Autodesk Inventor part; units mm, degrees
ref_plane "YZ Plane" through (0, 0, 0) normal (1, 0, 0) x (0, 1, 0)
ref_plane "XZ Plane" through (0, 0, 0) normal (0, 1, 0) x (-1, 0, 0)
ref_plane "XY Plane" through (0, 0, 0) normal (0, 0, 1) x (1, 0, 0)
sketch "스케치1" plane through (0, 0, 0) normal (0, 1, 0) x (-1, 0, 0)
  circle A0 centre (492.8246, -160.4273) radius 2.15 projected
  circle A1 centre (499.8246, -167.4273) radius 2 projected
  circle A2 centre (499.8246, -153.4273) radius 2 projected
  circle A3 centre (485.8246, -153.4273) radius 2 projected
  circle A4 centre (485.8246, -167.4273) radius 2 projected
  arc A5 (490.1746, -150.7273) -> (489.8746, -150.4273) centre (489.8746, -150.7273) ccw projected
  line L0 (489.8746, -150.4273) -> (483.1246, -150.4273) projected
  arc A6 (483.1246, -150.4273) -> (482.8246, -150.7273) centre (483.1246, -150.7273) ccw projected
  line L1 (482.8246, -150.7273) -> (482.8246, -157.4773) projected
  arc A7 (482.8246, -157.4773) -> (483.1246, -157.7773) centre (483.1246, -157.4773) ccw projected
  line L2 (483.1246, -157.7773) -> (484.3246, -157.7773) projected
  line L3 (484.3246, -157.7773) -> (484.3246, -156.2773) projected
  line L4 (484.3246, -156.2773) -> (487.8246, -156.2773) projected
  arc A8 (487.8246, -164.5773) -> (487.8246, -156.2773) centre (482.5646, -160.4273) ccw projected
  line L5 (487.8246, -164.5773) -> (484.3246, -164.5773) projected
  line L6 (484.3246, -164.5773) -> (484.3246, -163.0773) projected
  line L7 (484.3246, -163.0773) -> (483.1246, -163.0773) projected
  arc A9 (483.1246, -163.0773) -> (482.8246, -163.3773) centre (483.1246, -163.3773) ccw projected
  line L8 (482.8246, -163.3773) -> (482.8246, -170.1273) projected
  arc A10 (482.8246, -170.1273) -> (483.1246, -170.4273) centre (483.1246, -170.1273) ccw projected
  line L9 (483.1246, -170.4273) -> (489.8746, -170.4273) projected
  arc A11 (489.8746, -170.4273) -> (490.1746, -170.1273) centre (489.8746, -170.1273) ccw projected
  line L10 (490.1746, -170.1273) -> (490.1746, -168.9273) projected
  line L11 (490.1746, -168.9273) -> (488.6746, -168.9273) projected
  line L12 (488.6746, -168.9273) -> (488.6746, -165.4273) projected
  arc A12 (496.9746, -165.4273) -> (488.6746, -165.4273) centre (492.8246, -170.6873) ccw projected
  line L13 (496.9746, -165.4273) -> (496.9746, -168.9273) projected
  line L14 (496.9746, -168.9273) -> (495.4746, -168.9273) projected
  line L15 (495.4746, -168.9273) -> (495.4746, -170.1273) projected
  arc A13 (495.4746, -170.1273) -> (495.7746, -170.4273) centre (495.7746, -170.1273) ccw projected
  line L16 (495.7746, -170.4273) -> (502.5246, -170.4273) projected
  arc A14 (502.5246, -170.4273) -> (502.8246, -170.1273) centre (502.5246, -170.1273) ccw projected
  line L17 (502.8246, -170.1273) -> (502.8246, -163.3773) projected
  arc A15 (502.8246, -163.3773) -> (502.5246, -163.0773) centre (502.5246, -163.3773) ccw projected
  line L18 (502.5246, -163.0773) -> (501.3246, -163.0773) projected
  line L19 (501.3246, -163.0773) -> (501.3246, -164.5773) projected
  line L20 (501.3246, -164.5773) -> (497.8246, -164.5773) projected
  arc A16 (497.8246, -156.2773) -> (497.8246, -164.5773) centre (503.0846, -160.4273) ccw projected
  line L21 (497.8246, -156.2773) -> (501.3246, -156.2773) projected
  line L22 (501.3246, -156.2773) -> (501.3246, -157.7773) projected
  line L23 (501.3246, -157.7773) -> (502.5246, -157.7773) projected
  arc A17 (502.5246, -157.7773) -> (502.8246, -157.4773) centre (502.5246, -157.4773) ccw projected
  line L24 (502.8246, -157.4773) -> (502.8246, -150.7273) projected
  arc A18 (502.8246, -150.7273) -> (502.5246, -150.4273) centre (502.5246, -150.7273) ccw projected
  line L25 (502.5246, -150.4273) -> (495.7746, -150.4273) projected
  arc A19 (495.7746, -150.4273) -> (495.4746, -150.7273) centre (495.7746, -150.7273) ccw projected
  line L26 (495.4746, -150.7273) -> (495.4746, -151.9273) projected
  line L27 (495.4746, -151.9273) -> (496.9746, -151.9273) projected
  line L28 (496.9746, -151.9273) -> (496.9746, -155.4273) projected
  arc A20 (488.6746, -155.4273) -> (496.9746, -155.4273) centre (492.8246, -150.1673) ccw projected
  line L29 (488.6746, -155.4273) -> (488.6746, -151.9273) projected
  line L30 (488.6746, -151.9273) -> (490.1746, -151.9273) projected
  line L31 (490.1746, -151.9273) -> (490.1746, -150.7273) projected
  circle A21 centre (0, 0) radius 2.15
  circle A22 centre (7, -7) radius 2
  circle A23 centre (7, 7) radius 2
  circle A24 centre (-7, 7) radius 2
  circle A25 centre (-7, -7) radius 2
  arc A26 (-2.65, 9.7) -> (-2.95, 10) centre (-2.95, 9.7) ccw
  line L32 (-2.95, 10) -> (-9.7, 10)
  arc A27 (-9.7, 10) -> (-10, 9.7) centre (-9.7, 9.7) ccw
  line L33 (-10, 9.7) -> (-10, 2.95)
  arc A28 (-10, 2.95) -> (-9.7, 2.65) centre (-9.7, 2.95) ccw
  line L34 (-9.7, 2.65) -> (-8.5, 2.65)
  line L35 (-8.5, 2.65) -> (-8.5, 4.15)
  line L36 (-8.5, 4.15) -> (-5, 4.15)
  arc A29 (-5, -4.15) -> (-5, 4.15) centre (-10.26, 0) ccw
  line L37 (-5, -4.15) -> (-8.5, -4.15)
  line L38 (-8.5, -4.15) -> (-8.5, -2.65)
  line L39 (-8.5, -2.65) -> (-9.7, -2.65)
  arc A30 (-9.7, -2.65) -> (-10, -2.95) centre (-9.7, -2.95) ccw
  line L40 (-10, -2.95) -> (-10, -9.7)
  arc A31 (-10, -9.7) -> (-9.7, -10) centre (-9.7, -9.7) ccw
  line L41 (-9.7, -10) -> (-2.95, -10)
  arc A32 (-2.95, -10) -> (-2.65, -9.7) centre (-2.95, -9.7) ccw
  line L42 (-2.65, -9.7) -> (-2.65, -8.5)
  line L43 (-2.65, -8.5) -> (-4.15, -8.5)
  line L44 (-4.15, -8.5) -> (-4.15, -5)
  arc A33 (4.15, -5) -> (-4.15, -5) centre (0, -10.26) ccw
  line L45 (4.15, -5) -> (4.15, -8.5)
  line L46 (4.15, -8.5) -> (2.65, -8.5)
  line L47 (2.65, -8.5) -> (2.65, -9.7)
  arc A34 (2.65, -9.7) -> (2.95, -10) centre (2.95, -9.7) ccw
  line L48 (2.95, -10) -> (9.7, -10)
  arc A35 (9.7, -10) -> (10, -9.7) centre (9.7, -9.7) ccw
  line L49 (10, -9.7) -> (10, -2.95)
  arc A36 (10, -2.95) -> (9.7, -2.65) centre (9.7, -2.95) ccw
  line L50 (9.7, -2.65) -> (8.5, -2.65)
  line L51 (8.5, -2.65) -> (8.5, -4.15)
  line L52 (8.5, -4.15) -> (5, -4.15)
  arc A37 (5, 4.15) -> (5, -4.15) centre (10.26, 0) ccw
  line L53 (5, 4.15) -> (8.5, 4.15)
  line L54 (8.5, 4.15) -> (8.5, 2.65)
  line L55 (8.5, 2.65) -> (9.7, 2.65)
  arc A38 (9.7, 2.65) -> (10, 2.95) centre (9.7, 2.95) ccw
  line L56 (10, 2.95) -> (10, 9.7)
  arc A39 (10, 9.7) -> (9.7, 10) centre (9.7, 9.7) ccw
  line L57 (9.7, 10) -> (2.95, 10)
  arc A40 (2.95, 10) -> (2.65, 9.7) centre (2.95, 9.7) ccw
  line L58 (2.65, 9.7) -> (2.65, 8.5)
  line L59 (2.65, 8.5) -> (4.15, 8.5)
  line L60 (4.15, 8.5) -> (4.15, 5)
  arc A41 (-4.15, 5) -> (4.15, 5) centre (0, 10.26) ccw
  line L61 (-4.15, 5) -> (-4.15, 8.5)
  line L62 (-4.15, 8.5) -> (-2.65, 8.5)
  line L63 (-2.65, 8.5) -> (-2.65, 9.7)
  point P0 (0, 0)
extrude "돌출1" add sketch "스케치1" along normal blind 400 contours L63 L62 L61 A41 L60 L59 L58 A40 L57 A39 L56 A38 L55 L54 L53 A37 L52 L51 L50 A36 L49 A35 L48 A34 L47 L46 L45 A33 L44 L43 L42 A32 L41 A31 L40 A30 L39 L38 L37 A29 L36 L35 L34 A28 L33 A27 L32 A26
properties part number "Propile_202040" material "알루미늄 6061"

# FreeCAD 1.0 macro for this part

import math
import FreeCAD as App
import Part
import Sketcher
from FreeCAD import Vector
Q = App.Units.Quantity

doc = App.newDocument("Part")
body = doc.addObject("PartDesign::Body", "Body")

# Sketch on XZ plane
sketch1 = body.newObject("Sketcher::SketchObject", "Sketch")
sketch1.AttachmentSupport = (doc.getObject("XZ_Plane"), [""])
sketch1.MapMode = "FlatFace"
sketch1.addGeometry(Part.LineSegment(Vector(2.65, 8.5, 0), Vector(2.65, 9.7, 0)), False)
sketch1.addGeometry(Part.ArcOfCircle(Part.Circle(Vector(2.95, 9.7, 0), Vector(0, 0, 1), 0.3), math.radians(90), math.radians(180)), False)
sketch1.addGeometry(Part.LineSegment(Vector(2.95, 10, 0), Vector(9.7, 10, 0)), False)
sketch1.addGeometry(Part.ArcOfCircle(Part.Circle(Vector(9.7, 9.7, 0), Vector(0, 0, 1), 0.3), math.radians(0), math.radians(90)), False)
sketch1.addGeometry(Part.LineSegment(Vector(10, 9.7, 0), Vector(10, 2.95, 0)), False)
sketch1.addGeometry(Part.ArcOfCircle(Part.Circle(Vector(9.7, 2.95, 0), Vector(0, 0, 1), 0.3), math.radians(-90), math.radians(0)), False)
sketch1.addGeometry(Part.LineSegment(Vector(9.7, 2.65, 0), Vector(8.5, 2.65, 0)), False)
sketch1.addGeometry(Part.LineSegment(Vector(8.5, 2.65, 0), Vector(8.5, 4.15, 0)), False)
sketch1.addGeometry(Part.LineSegment(Vector(8.5, 4.15, 0), Vector(5, 4.15, 0)), False)
sketch1.addGeometry(Part.ArcOfCircle(Part.Circle(Vector(10.26, 0, 0), Vector(0, 0, 1), 6.700007), math.radians(141.7275), math.radians(218.2725)), False)
sketch1.addGeometry(Part.LineSegment(Vector(5, -4.15, 0), Vector(8.5, -4.15, 0)), False)
sketch1.addGeometry(Part.LineSegment(Vector(8.5, -4.15, 0), Vector(8.5, -2.65, 0)), False)
sketch1.addGeometry(Part.LineSegment(Vector(8.5, -2.65, 0), Vector(9.7, -2.65, 0)), False)
sketch1.addGeometry(Part.ArcOfCircle(Part.Circle(Vector(9.7, -2.95, 0), Vector(0, 0, 1), 0.3), math.radians(0), math.radians(90)), False)
sketch1.addGeometry(Part.LineSegment(Vector(10, -2.95, 0), Vector(10, -9.7, 0)), False)
sketch1.addGeometry(Part.ArcOfCircle(Part.Circle(Vector(9.7, -9.7, 0), Vector(0, 0, 1), 0.3), math.radians(-90), math.radians(0)), False)
sketch1.addGeometry(Part.LineSegment(Vector(9.7, -10, 0), Vector(2.95, -10, 0)), False)
sketch1.addGeometry(Part.ArcOfCircle(Part.Circle(Vector(2.95, -9.7, 0), Vector(0, 0, 1), 0.3), math.radians(180), math.radians(270)), False)
sketch1.addGeometry(Part.LineSegment(Vector(2.65, -9.7, 0), Vector(2.65, -8.5, 0)), False)
sketch1.addGeometry(Part.LineSegment(Vector(2.65, -8.5, 0), Vector(4.15, -8.5, 0)), False)
sketch1.addGeometry(Part.LineSegment(Vector(4.15, -8.5, 0), Vector(4.15, -5, 0)), False)
sketch1.addGeometry(Part.ArcOfCircle(Part.Circle(Vector(0, -10.26, 0), Vector(0, 0, 1), 6.700007), math.radians(51.7275), math.radians(128.2725)), False)
sketch1.addGeometry(Part.LineSegment(Vector(-4.15, -5, 0), Vector(-4.15, -8.5, 0)), False)
sketch1.addGeometry(Part.LineSegment(Vector(-4.15, -8.5, 0), Vector(-2.65, -8.5, 0)), False)
sketch1.addGeometry(Part.LineSegment(Vector(-2.65, -8.5, 0), Vector(-2.65, -9.7, 0)), False)
sketch1.addGeometry(Part.ArcOfCircle(Part.Circle(Vector(-2.95, -9.7, 0), Vector(0, 0, 1), 0.3), math.radians(-90), math.radians(0)), False)
sketch1.addGeometry(Part.LineSegment(Vector(-2.95, -10, 0), Vector(-9.7, -10, 0)), False)
sketch1.addGeometry(Part.ArcOfCircle(Part.Circle(Vector(-9.7, -9.7, 0), Vector(0, 0, 1), 0.3), math.radians(180), math.radians(270)), False)
sketch1.addGeometry(Part.LineSegment(Vector(-10, -9.7, 0), Vector(-10, -2.95, 0)), False)
sketch1.addGeometry(Part.ArcOfCircle(Part.Circle(Vector(-9.7, -2.95, 0), Vector(0, 0, 1), 0.3), math.radians(90), math.radians(180)), False)
sketch1.addGeometry(Part.LineSegment(Vector(-9.7, -2.65, 0), Vector(-8.5, -2.65, 0)), False)
sketch1.addGeometry(Part.LineSegment(Vector(-8.5, -2.65, 0), Vector(-8.5, -4.15, 0)), False)
sketch1.addGeometry(Part.LineSegment(Vector(-8.5, -4.15, 0), Vector(-5, -4.15, 0)), False)
sketch1.addGeometry(Part.ArcOfCircle(Part.Circle(Vector(-10.26, 0, 0), Vector(0, 0, 1), 6.700007), math.radians(-38.2725), math.radians(38.2725)), False)
sketch1.addGeometry(Part.LineSegment(Vector(-5, 4.15, 0), Vector(-8.5, 4.15, 0)), False)
sketch1.addGeometry(Part.LineSegment(Vector(-8.5, 4.15, 0), Vector(-8.5, 2.65, 0)), False)
sketch1.addGeometry(Part.LineSegment(Vector(-8.5, 2.65, 0), Vector(-9.7, 2.65, 0)), False)
sketch1.addGeometry(Part.ArcOfCircle(Part.Circle(Vector(-9.7, 2.95, 0), Vector(0, 0, 1), 0.3), math.radians(180), math.radians(270)), False)
sketch1.addGeometry(Part.LineSegment(Vector(-10, 2.95, 0), Vector(-10, 9.7, 0)), False)
sketch1.addGeometry(Part.ArcOfCircle(Part.Circle(Vector(-9.7, 9.7, 0), Vector(0, 0, 1), 0.3), math.radians(90), math.radians(180)), False)
sketch1.addGeometry(Part.LineSegment(Vector(-9.7, 10, 0), Vector(-2.95, 10, 0)), False)
sketch1.addGeometry(Part.ArcOfCircle(Part.Circle(Vector(-2.95, 9.7, 0), Vector(0, 0, 1), 0.3), math.radians(0), math.radians(90)), False)
sketch1.addGeometry(Part.LineSegment(Vector(-2.65, 9.7, 0), Vector(-2.65, 8.5, 0)), False)
sketch1.addGeometry(Part.LineSegment(Vector(-2.65, 8.5, 0), Vector(-4.15, 8.5, 0)), False)
sketch1.addGeometry(Part.LineSegment(Vector(-4.15, 8.5, 0), Vector(-4.15, 5, 0)), False)
sketch1.addGeometry(Part.ArcOfCircle(Part.Circle(Vector(0, 10.26, 0), Vector(0, 0, 1), 6.700007), math.radians(-128.2725), math.radians(-51.7275)), False)
sketch1.addGeometry(Part.LineSegment(Vector(4.15, 5, 0), Vector(4.15, 8.5, 0)), False)
sketch1.addGeometry(Part.LineSegment(Vector(4.15, 8.5, 0), Vector(2.65, 8.5, 0)), False)
sketch1.addGeometry(Part.Circle(Vector(7, -7, 0), Vector(0, 0, 1), 2), False)
sketch1.addGeometry(Part.Circle(Vector(-7, -7, 0), Vector(0, 0, 1), 2), False)
sketch1.addGeometry(Part.Circle(Vector(0, 0, 0), Vector(0, 0, 1), 2.15), False)
sketch1.addGeometry(Part.Circle(Vector(7, 7, 0), Vector(0, 0, 1), 2), False)
sketch1.addGeometry(Part.Circle(Vector(-7, 7, 0), Vector(0, 0, 1), 2), False)
sketch1.addConstraint(Sketcher.Constraint("Tangent", 0, 2, 1, 2))
sketch1.addConstraint(Sketcher.Constraint("Tangent", 1, 1, 2, 1))
sketch1.addConstraint(Sketcher.Constraint("Tangent", 2, 2, 3, 2))
sketch1.addConstraint(Sketcher.Constraint("Tangent", 3, 1, 4, 1))
sketch1.addConstraint(Sketcher.Constraint("Tangent", 4, 2, 5, 2))
sketch1.addConstraint(Sketcher.Constraint("Tangent", 5, 1, 6, 1))
sketch1.addConstraint(Sketcher.Constraint("Coincident", 6, 2, 7, 1))
sketch1.addConstraint(Sketcher.Constraint("Coincident", 7, 2, 8, 1))
sketch1.addConstraint(Sketcher.Constraint("Coincident", 8, 2, 9, 1))
sketch1.addConstraint(Sketcher.Constraint("Coincident", 9, 2, 10, 1))
sketch1.addConstraint(Sketcher.Constraint("Coincident", 10, 2, 11, 1))
sketch1.addConstraint(Sketcher.Constraint("Coincident", 11, 2, 12, 1))
sketch1.addConstraint(Sketcher.Constraint("Tangent", 12, 2, 13, 2))
sketch1.addConstraint(Sketcher.Constraint("Tangent", 13, 1, 14, 1))
sketch1.addConstraint(Sketcher.Constraint("Tangent", 14, 2, 15, 2))
sketch1.addConstraint(Sketcher.Constraint("Tangent", 15, 1, 16, 1))
sketch1.addConstraint(Sketcher.Constraint("Tangent", 16, 2, 17, 2))
sketch1.addConstraint(Sketcher.Constraint("Tangent", 17, 1, 18, 1))
sketch1.addConstraint(Sketcher.Constraint("Coincident", 18, 2, 19, 1))
sketch1.addConstraint(Sketcher.Constraint("Coincident", 19, 2, 20, 1))
sketch1.addConstraint(Sketcher.Constraint("Coincident", 20, 2, 21, 1))
sketch1.addConstraint(Sketcher.Constraint("Coincident", 21, 2, 22, 1))
sketch1.addConstraint(Sketcher.Constraint("Coincident", 22, 2, 23, 1))
sketch1.addConstraint(Sketcher.Constraint("Coincident", 23, 2, 24, 1))
sketch1.addConstraint(Sketcher.Constraint("Tangent", 24, 2, 25, 2))
sketch1.addConstraint(Sketcher.Constraint("Tangent", 25, 1, 26, 1))
sketch1.addConstraint(Sketcher.Constraint("Tangent", 26, 2, 27, 2))
sketch1.addConstraint(Sketcher.Constraint("Tangent", 27, 1, 28, 1))
sketch1.addConstraint(Sketcher.Constraint("Tangent", 28, 2, 29, 2))
sketch1.addConstraint(Sketcher.Constraint("Tangent", 29, 1, 30, 1))
sketch1.addConstraint(Sketcher.Constraint("Coincident", 30, 2, 31, 1))
sketch1.addConstraint(Sketcher.Constraint("Coincident", 31, 2, 32, 1))
sketch1.addConstraint(Sketcher.Constraint("Coincident", 32, 2, 33, 1))
sketch1.addConstraint(Sketcher.Constraint("Coincident", 33, 2, 34, 1))
sketch1.addConstraint(Sketcher.Constraint("Coincident", 34, 2, 35, 1))
sketch1.addConstraint(Sketcher.Constraint("Coincident", 35, 2, 36, 1))
sketch1.addConstraint(Sketcher.Constraint("Tangent", 36, 2, 37, 2))
sketch1.addConstraint(Sketcher.Constraint("Tangent", 37, 1, 38, 1))
sketch1.addConstraint(Sketcher.Constraint("Tangent", 38, 2, 39, 2))
sketch1.addConstraint(Sketcher.Constraint("Tangent", 39, 1, 40, 1))
sketch1.addConstraint(Sketcher.Constraint("Tangent", 40, 2, 41, 2))
sketch1.addConstraint(Sketcher.Constraint("Tangent", 41, 1, 42, 1))
sketch1.addConstraint(Sketcher.Constraint("Coincident", 42, 2, 43, 1))
sketch1.addConstraint(Sketcher.Constraint("Coincident", 43, 2, 44, 1))
sketch1.addConstraint(Sketcher.Constraint("Coincident", 44, 2, 45, 1))
sketch1.addConstraint(Sketcher.Constraint("Coincident", 45, 2, 46, 1))
sketch1.addConstraint(Sketcher.Constraint("Coincident", 46, 2, 47, 1))
sketch1.addConstraint(Sketcher.Constraint("Coincident", 47, 2, 0, 1))
sketch1.addConstraint(Sketcher.Constraint("Vertical", 0))
sketch1.addConstraint(Sketcher.Constraint("Horizontal", 2))
sketch1.addConstraint(Sketcher.Constraint("Vertical", 4))
sketch1.addConstraint(Sketcher.Constraint("Horizontal", 6))
sketch1.addConstraint(Sketcher.Constraint("Vertical", 7))
sketch1.addConstraint(Sketcher.Constraint("Horizontal", 8))
sketch1.addConstraint(Sketcher.Constraint("Horizontal", 10))
sketch1.addConstraint(Sketcher.Constraint("Vertical", 11))
sketch1.addConstraint(Sketcher.Constraint("Horizontal", 12))
sketch1.addConstraint(Sketcher.Constraint("Vertical", 14))
sketch1.addConstraint(Sketcher.Constraint("Horizontal", 16))
sketch1.addConstraint(Sketcher.Constraint("Vertical", 18))
sketch1.addConstraint(Sketcher.Constraint("Horizontal", 19))
sketch1.addConstraint(Sketcher.Constraint("Vertical", 20))
sketch1.addConstraint(Sketcher.Constraint("Vertical", 22))
sketch1.addConstraint(Sketcher.Constraint("Horizontal", 23))
sketch1.addConstraint(Sketcher.Constraint("Vertical", 24))
sketch1.addConstraint(Sketcher.Constraint("Horizontal", 26))
sketch1.addConstraint(Sketcher.Constraint("Vertical", 28))
sketch1.addConstraint(Sketcher.Constraint("Horizontal", 30))
sketch1.addConstraint(Sketcher.Constraint("Vertical", 31))
sketch1.addConstraint(Sketcher.Constraint("Horizontal", 32))
sketch1.addConstraint(Sketcher.Constraint("Horizontal", 34))
sketch1.addConstraint(Sketcher.Constraint("Vertical", 35))
sketch1.addConstraint(Sketcher.Constraint("Horizontal", 36))
sketch1.addConstraint(Sketcher.Constraint("Vertical", 38))
sketch1.addConstraint(Sketcher.Constraint("Horizontal", 40))
sketch1.addConstraint(Sketcher.Constraint("Vertical", 42))
sketch1.addConstraint(Sketcher.Constraint("Horizontal", 43))
sketch1.addConstraint(Sketcher.Constraint("Vertical", 44))
sketch1.addConstraint(Sketcher.Constraint("Vertical", 46))
sketch1.addConstraint(Sketcher.Constraint("Horizontal", 47))
sketch1.addConstraint(Sketcher.Constraint("Coincident", 50, 3, -1, 1))
sketch1.addConstraint(Sketcher.Constraint("Equal", 1, 3))
sketch1.addConstraint(Sketcher.Constraint("Equal", 3, 5))
sketch1.addConstraint(Sketcher.Constraint("Equal", 5, 13))
sketch1.addConstraint(Sketcher.Constraint("Equal", 13, 15))
sketch1.addConstraint(Sketcher.Constraint("Equal", 15, 17))
sketch1.addConstraint(Sketcher.Constraint("Equal", 9, 21))
sketch1.addConstraint(Sketcher.Constraint("Equal", 17, 25))
sketch1.addConstraint(Sketcher.Constraint("Equal", 25, 27))
sketch1.addConstraint(Sketcher.Constraint("Equal", 27, 29))
sketch1.addConstraint(Sketcher.Constraint("Equal", 21, 33))
sketch1.addConstraint(Sketcher.Constraint("Equal", 29, 37))
sketch1.addConstraint(Sketcher.Constraint("Equal", 37, 39))
sketch1.addConstraint(Sketcher.Constraint("Equal", 39, 41))
sketch1.addConstraint(Sketcher.Constraint("Equal", 33, 45))
sketch1.addConstraint(Sketcher.Constraint("Equal", 48, 49))
sketch1.addConstraint(Sketcher.Constraint("Equal", 49, 51))
sketch1.addConstraint(Sketcher.Constraint("Equal", 51, 52))
sketch1.addConstraint(Sketcher.Constraint("Symmetric", 1, 3, 25, 3, -1, 1))
sketch1.addConstraint(Sketcher.Constraint("Symmetric", 5, 3, 29, 3, -1, 1))
sketch1.addConstraint(Sketcher.Constraint("Symmetric", 9, 3, 33, 3, -1, 1))
sketch1.addConstraint(Sketcher.Constraint("Symmetric", 13, 3, 37, 3, -1, 1))
sketch1.addConstraint(Sketcher.Constraint("Symmetric", 17, 3, 41, 3, -1, 1))
sketch1.addConstraint(Sketcher.Constraint("Symmetric", 21, 3, 45, 3, -1, 1))
sketch1.addConstraint(Sketcher.Constraint("Symmetric", 49, 3, 51, 3, -1, 1))
sketch1.addConstraint(Sketcher.Constraint("Symmetric", 48, 3, 52, 3, -1, 1))
sketch1.addConstraint(Sketcher.Constraint("Symmetric", 7, 2, 31, 2, -1, 1))
sketch1.addConstraint(Sketcher.Constraint("Symmetric", 10, 2, 34, 2, -1, 1))
sketch1.addConstraint(Sketcher.Constraint("Symmetric", 19, 2, 43, 2, -1, 1))
sketch1.addConstraint(Sketcher.Constraint("Symmetric", 22, 2, 46, 2, -1, 1))
sketch1.addConstraint(Sketcher.Constraint("Symmetric", 17, 3, 25, 3, -2))
sketch1.addConstraint(Sketcher.Constraint("Symmetric", 13, 3, 29, 3, -2))
sketch1.addConstraint(Sketcher.Constraint("Symmetric", 48, 3, 49, 3, -2))
sketch1.addConstraint(Sketcher.Constraint("Symmetric", 20, 2, 21, 2, -2))
sketch1.addConstraint(Sketcher.Constraint("Symmetric", 10, 2, 31, 2, -2))
sketch1.addConstraint(Sketcher.Constraint("PointOnObject", 9, 3, -1))
sketch1.addConstraint(Sketcher.Constraint("Horizontal", 19, 2, 22, 2))
sketch1.addConstraint(Sketcher.Constraint("Equal", 36, 0))
sketch1.addConstraint(Sketcher.Constraint("Equal", 40, 4))
sketch1.addConstraint(Sketcher.Constraint("Equal", 47, 7))
sketch1.addConstraint(Sketcher.Constraint("Equal", 34, 20))
sketch1.addConstraint(Sketcher.Constraint("Diameter", 48, Q("4 mm")))
sketch1.addConstraint(Sketcher.Constraint("Diameter", 50, Q("4.3 mm")))
sketch1.addConstraint(Sketcher.Constraint("Radius", 1, Q("0.3 mm")))
sketch1.addConstraint(Sketcher.Constraint("Radius", 9, Q("6.7 mm")))
sketch1.addConstraint(Sketcher.Constraint("DistanceX", 6, 2, 6, 1, Q("1.2 mm")))
sketch1.addConstraint(Sketcher.Constraint("DistanceX", 8, 2, 8, 1, Q("3.5 mm")))
sketch1.addConstraint(Sketcher.Constraint("DistanceX", 19, 1, 19, 2, Q("1.5 mm")))
sketch1.addConstraint(Sketcher.Constraint("DistanceX", -1, 1, 48, 3, Q("7 mm")))
sketch1.addConstraint(Sketcher.Constraint("DistanceY", 48, 3, -1, 1, Q("7 mm")))
sketch1.addConstraint(Sketcher.Constraint("DistanceY", -1, 1, 1, 1, Q("10 mm")))
sketch1.addConstraint(Sketcher.Constraint("DistanceX", -1, 1, 3, 1, Q("10 mm")))
sketch1.addConstraint(Sketcher.Constraint("DistanceX", 2, 1, 2, 2, Q("6.75 mm")))
pad1 = body.newObject("PartDesign::Pad", "Pad")
pad1.Profile = sketch1
pad1.Length = 400
pad1.Reversed = True

doc.recompute()
